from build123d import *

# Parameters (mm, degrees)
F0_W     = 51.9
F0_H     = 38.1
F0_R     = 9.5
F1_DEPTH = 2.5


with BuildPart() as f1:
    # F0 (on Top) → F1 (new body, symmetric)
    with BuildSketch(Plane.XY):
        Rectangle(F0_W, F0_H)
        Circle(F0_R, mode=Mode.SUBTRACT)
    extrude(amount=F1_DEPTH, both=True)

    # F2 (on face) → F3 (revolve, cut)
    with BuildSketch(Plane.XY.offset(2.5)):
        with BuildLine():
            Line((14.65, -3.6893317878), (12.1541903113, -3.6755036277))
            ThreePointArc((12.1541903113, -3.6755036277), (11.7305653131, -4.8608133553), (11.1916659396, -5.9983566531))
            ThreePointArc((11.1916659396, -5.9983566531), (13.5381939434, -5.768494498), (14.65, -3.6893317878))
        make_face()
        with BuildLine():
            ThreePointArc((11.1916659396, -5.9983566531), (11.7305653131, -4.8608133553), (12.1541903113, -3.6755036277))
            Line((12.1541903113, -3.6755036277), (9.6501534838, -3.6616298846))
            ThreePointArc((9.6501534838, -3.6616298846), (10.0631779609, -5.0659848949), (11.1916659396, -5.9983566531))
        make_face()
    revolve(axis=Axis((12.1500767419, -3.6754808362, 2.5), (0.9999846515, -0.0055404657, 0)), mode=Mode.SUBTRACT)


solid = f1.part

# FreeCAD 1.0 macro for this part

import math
import FreeCAD as App
import Part
import Sketcher

V = App.Vector

doc = App.newDocument("Part")
body = doc.addObject("PartDesign::Body", "Body")

# Sketch on XY plane
sketch1 = doc.addObject("Sketcher::SketchObject", "Sketch")
body.addObject(sketch1)
sketch1.AttachmentSupport = (doc.XY_Plane, [""])
sketch1.MapMode = "FlatFace"
sketch1.addGeometry(Part.LineSegment(V(-25.95, 19.05, 0), V(-25.95, -19.05, 0)), False)
sketch1.addGeometry(Part.LineSegment(V(-25.95, -19.05, 0), V(25.95, -19.05, 0)), False)
sketch1.addGeometry(Part.LineSegment(V(25.95, -19.05, 0), V(25.95, 19.05, 0)), False)
sketch1.addGeometry(Part.LineSegment(V(25.95, 19.05, 0), V(-25.95, 19.05, 0)), False)
sketch1.addGeometry(Part.Circle(V(0, 0, 0), V(0, 0, 1), 9.5), False)
sketch1.addConstraint(Sketcher.Constraint("Coincident", 0, 2, 1, 1))
sketch1.addConstraint(Sketcher.Constraint("Coincident", 1, 2, 2, 1))
sketch1.addConstraint(Sketcher.Constraint("Coincident", 2, 2, 3, 1))
sketch1.addConstraint(Sketcher.Constraint("Coincident", 3, 2, 0, 1))
sketch1.addConstraint(Sketcher.Constraint("Vertical", 0))
sketch1.addConstraint(Sketcher.Constraint("Horizontal", 1))
sketch1.addConstraint(Sketcher.Constraint("Vertical", 2))
sketch1.addConstraint(Sketcher.Constraint("Horizontal", 3))
sketch1.addConstraint(Sketcher.Constraint("Coincident", 4, 3, -1, 1))
sketch1.addConstraint(Sketcher.Constraint("Symmetric", 0, 2, 2, 2, -1, 1))
sketch1.addConstraint(Sketcher.Constraint("Diameter", 4, 19.0))
sketch1.addConstraint(Sketcher.Constraint("DistanceX", 1, 1, 1, 2, 51.9))
sketch1.addConstraint(Sketcher.Constraint("DistanceY", 0, 2, 0, 1, 38.1))
pad1 = doc.addObject("PartDesign::Pad", "Pad")
body.addObject(pad1)
pad1.Profile = sketch1
pad1.Length = 5
pad1.Midplane = True

# Sketch on XY plane
sketch2 = doc.addObject("Sketcher::SketchObject", "Sketch001")
body.addObject(sketch2)
sketch2.AttachmentSupport = (doc.XY_Plane, [""])
sketch2.MapMode = "FlatFace"
sketch2.AttachmentOffset = App.Placement(V(0, 0, 2.5), App.Rotation())
sketch2.addGeometry(Part.LineSegment(V(14.65, -3.689332, 0), V(12.15419, -3.675504, 0)), False)
sketch2.addGeometry(Part.LineSegment(V(12.15419, -3.675504, 0), V(9.650153, -3.66163, 0)), False)
sketch2.addGeometry(Part.ArcOfCircle(Part.Circle(V(12.15, -3.689332, 0), V(0, 0, 1), 2.5), math.radians(179.365106), math.radians(247.459672)), False)
sketch2.addGeometry(Part.ArcOfCircle(Part.Circle(V(12.15, -3.689332, 0), V(0, 0, 1), 2.5), math.radians(-112.540328), math.radians(0)), False)
sketch2.addGeometry(Part.LineSegment(V(9.650153, -3.66163, 0), V(14.65, -3.689332, 0)), True)  # axis
sketch2.addConstraint(Sketcher.Constraint("Coincident", 0, 2, 1, 1))
sketch2.addConstraint(Sketcher.Constraint("Coincident", 1, 2, 2, 1))
sketch2.addConstraint(Sketcher.Constraint("Tangent", 2, 2, 3, 1))
sketch2.addConstraint(Sketcher.Constraint("Coincident", 3, 2, 0, 1))
sketch2.addConstraint(Sketcher.Constraint("Coincident", 4, 1, 1, 2))
sketch2.addConstraint(Sketcher.Constraint("Coincident", 4, 2, 3, 2))
sketch2.addConstraint(Sketcher.Constraint("Equal", 2, 3))
sketch2.addConstraint(Sketcher.Constraint("Parallel", 0, 1))
sketch2.addConstraint(Sketcher.Constraint("Horizontal", 2, 3, 3, 2))
sketch2.addConstraint(Sketcher.Constraint("Radius", 2, 2.5))
sketch2.addConstraint(Sketcher.Constraint("DistanceX", -1, 1, 2, 3, 12.15))
sketch2.addConstraint(Sketcher.Constraint("DistanceY", 2, 3, 1, 2, 0.027702))
sketch2.addConstraint(Sketcher.Constraint("DistanceY", 2, 3, -1, 1, 3.689332))
sketch2.addConstraint(Sketcher.Constraint("DistanceX", -1, 1, 0, 2, 12.15419))
sketch2.addConstraint(Sketcher.Constraint("DistanceX", -1, 1, 2, 2, 11.191666))
groove = doc.addObject("PartDesign::Groove", "Groove")
body.addObject(groove)
groove.Profile = sketch2
groove.ReferenceAxis = (sketch2, ["Axis0"])
groove.Angle = 360

doc.recompute()
